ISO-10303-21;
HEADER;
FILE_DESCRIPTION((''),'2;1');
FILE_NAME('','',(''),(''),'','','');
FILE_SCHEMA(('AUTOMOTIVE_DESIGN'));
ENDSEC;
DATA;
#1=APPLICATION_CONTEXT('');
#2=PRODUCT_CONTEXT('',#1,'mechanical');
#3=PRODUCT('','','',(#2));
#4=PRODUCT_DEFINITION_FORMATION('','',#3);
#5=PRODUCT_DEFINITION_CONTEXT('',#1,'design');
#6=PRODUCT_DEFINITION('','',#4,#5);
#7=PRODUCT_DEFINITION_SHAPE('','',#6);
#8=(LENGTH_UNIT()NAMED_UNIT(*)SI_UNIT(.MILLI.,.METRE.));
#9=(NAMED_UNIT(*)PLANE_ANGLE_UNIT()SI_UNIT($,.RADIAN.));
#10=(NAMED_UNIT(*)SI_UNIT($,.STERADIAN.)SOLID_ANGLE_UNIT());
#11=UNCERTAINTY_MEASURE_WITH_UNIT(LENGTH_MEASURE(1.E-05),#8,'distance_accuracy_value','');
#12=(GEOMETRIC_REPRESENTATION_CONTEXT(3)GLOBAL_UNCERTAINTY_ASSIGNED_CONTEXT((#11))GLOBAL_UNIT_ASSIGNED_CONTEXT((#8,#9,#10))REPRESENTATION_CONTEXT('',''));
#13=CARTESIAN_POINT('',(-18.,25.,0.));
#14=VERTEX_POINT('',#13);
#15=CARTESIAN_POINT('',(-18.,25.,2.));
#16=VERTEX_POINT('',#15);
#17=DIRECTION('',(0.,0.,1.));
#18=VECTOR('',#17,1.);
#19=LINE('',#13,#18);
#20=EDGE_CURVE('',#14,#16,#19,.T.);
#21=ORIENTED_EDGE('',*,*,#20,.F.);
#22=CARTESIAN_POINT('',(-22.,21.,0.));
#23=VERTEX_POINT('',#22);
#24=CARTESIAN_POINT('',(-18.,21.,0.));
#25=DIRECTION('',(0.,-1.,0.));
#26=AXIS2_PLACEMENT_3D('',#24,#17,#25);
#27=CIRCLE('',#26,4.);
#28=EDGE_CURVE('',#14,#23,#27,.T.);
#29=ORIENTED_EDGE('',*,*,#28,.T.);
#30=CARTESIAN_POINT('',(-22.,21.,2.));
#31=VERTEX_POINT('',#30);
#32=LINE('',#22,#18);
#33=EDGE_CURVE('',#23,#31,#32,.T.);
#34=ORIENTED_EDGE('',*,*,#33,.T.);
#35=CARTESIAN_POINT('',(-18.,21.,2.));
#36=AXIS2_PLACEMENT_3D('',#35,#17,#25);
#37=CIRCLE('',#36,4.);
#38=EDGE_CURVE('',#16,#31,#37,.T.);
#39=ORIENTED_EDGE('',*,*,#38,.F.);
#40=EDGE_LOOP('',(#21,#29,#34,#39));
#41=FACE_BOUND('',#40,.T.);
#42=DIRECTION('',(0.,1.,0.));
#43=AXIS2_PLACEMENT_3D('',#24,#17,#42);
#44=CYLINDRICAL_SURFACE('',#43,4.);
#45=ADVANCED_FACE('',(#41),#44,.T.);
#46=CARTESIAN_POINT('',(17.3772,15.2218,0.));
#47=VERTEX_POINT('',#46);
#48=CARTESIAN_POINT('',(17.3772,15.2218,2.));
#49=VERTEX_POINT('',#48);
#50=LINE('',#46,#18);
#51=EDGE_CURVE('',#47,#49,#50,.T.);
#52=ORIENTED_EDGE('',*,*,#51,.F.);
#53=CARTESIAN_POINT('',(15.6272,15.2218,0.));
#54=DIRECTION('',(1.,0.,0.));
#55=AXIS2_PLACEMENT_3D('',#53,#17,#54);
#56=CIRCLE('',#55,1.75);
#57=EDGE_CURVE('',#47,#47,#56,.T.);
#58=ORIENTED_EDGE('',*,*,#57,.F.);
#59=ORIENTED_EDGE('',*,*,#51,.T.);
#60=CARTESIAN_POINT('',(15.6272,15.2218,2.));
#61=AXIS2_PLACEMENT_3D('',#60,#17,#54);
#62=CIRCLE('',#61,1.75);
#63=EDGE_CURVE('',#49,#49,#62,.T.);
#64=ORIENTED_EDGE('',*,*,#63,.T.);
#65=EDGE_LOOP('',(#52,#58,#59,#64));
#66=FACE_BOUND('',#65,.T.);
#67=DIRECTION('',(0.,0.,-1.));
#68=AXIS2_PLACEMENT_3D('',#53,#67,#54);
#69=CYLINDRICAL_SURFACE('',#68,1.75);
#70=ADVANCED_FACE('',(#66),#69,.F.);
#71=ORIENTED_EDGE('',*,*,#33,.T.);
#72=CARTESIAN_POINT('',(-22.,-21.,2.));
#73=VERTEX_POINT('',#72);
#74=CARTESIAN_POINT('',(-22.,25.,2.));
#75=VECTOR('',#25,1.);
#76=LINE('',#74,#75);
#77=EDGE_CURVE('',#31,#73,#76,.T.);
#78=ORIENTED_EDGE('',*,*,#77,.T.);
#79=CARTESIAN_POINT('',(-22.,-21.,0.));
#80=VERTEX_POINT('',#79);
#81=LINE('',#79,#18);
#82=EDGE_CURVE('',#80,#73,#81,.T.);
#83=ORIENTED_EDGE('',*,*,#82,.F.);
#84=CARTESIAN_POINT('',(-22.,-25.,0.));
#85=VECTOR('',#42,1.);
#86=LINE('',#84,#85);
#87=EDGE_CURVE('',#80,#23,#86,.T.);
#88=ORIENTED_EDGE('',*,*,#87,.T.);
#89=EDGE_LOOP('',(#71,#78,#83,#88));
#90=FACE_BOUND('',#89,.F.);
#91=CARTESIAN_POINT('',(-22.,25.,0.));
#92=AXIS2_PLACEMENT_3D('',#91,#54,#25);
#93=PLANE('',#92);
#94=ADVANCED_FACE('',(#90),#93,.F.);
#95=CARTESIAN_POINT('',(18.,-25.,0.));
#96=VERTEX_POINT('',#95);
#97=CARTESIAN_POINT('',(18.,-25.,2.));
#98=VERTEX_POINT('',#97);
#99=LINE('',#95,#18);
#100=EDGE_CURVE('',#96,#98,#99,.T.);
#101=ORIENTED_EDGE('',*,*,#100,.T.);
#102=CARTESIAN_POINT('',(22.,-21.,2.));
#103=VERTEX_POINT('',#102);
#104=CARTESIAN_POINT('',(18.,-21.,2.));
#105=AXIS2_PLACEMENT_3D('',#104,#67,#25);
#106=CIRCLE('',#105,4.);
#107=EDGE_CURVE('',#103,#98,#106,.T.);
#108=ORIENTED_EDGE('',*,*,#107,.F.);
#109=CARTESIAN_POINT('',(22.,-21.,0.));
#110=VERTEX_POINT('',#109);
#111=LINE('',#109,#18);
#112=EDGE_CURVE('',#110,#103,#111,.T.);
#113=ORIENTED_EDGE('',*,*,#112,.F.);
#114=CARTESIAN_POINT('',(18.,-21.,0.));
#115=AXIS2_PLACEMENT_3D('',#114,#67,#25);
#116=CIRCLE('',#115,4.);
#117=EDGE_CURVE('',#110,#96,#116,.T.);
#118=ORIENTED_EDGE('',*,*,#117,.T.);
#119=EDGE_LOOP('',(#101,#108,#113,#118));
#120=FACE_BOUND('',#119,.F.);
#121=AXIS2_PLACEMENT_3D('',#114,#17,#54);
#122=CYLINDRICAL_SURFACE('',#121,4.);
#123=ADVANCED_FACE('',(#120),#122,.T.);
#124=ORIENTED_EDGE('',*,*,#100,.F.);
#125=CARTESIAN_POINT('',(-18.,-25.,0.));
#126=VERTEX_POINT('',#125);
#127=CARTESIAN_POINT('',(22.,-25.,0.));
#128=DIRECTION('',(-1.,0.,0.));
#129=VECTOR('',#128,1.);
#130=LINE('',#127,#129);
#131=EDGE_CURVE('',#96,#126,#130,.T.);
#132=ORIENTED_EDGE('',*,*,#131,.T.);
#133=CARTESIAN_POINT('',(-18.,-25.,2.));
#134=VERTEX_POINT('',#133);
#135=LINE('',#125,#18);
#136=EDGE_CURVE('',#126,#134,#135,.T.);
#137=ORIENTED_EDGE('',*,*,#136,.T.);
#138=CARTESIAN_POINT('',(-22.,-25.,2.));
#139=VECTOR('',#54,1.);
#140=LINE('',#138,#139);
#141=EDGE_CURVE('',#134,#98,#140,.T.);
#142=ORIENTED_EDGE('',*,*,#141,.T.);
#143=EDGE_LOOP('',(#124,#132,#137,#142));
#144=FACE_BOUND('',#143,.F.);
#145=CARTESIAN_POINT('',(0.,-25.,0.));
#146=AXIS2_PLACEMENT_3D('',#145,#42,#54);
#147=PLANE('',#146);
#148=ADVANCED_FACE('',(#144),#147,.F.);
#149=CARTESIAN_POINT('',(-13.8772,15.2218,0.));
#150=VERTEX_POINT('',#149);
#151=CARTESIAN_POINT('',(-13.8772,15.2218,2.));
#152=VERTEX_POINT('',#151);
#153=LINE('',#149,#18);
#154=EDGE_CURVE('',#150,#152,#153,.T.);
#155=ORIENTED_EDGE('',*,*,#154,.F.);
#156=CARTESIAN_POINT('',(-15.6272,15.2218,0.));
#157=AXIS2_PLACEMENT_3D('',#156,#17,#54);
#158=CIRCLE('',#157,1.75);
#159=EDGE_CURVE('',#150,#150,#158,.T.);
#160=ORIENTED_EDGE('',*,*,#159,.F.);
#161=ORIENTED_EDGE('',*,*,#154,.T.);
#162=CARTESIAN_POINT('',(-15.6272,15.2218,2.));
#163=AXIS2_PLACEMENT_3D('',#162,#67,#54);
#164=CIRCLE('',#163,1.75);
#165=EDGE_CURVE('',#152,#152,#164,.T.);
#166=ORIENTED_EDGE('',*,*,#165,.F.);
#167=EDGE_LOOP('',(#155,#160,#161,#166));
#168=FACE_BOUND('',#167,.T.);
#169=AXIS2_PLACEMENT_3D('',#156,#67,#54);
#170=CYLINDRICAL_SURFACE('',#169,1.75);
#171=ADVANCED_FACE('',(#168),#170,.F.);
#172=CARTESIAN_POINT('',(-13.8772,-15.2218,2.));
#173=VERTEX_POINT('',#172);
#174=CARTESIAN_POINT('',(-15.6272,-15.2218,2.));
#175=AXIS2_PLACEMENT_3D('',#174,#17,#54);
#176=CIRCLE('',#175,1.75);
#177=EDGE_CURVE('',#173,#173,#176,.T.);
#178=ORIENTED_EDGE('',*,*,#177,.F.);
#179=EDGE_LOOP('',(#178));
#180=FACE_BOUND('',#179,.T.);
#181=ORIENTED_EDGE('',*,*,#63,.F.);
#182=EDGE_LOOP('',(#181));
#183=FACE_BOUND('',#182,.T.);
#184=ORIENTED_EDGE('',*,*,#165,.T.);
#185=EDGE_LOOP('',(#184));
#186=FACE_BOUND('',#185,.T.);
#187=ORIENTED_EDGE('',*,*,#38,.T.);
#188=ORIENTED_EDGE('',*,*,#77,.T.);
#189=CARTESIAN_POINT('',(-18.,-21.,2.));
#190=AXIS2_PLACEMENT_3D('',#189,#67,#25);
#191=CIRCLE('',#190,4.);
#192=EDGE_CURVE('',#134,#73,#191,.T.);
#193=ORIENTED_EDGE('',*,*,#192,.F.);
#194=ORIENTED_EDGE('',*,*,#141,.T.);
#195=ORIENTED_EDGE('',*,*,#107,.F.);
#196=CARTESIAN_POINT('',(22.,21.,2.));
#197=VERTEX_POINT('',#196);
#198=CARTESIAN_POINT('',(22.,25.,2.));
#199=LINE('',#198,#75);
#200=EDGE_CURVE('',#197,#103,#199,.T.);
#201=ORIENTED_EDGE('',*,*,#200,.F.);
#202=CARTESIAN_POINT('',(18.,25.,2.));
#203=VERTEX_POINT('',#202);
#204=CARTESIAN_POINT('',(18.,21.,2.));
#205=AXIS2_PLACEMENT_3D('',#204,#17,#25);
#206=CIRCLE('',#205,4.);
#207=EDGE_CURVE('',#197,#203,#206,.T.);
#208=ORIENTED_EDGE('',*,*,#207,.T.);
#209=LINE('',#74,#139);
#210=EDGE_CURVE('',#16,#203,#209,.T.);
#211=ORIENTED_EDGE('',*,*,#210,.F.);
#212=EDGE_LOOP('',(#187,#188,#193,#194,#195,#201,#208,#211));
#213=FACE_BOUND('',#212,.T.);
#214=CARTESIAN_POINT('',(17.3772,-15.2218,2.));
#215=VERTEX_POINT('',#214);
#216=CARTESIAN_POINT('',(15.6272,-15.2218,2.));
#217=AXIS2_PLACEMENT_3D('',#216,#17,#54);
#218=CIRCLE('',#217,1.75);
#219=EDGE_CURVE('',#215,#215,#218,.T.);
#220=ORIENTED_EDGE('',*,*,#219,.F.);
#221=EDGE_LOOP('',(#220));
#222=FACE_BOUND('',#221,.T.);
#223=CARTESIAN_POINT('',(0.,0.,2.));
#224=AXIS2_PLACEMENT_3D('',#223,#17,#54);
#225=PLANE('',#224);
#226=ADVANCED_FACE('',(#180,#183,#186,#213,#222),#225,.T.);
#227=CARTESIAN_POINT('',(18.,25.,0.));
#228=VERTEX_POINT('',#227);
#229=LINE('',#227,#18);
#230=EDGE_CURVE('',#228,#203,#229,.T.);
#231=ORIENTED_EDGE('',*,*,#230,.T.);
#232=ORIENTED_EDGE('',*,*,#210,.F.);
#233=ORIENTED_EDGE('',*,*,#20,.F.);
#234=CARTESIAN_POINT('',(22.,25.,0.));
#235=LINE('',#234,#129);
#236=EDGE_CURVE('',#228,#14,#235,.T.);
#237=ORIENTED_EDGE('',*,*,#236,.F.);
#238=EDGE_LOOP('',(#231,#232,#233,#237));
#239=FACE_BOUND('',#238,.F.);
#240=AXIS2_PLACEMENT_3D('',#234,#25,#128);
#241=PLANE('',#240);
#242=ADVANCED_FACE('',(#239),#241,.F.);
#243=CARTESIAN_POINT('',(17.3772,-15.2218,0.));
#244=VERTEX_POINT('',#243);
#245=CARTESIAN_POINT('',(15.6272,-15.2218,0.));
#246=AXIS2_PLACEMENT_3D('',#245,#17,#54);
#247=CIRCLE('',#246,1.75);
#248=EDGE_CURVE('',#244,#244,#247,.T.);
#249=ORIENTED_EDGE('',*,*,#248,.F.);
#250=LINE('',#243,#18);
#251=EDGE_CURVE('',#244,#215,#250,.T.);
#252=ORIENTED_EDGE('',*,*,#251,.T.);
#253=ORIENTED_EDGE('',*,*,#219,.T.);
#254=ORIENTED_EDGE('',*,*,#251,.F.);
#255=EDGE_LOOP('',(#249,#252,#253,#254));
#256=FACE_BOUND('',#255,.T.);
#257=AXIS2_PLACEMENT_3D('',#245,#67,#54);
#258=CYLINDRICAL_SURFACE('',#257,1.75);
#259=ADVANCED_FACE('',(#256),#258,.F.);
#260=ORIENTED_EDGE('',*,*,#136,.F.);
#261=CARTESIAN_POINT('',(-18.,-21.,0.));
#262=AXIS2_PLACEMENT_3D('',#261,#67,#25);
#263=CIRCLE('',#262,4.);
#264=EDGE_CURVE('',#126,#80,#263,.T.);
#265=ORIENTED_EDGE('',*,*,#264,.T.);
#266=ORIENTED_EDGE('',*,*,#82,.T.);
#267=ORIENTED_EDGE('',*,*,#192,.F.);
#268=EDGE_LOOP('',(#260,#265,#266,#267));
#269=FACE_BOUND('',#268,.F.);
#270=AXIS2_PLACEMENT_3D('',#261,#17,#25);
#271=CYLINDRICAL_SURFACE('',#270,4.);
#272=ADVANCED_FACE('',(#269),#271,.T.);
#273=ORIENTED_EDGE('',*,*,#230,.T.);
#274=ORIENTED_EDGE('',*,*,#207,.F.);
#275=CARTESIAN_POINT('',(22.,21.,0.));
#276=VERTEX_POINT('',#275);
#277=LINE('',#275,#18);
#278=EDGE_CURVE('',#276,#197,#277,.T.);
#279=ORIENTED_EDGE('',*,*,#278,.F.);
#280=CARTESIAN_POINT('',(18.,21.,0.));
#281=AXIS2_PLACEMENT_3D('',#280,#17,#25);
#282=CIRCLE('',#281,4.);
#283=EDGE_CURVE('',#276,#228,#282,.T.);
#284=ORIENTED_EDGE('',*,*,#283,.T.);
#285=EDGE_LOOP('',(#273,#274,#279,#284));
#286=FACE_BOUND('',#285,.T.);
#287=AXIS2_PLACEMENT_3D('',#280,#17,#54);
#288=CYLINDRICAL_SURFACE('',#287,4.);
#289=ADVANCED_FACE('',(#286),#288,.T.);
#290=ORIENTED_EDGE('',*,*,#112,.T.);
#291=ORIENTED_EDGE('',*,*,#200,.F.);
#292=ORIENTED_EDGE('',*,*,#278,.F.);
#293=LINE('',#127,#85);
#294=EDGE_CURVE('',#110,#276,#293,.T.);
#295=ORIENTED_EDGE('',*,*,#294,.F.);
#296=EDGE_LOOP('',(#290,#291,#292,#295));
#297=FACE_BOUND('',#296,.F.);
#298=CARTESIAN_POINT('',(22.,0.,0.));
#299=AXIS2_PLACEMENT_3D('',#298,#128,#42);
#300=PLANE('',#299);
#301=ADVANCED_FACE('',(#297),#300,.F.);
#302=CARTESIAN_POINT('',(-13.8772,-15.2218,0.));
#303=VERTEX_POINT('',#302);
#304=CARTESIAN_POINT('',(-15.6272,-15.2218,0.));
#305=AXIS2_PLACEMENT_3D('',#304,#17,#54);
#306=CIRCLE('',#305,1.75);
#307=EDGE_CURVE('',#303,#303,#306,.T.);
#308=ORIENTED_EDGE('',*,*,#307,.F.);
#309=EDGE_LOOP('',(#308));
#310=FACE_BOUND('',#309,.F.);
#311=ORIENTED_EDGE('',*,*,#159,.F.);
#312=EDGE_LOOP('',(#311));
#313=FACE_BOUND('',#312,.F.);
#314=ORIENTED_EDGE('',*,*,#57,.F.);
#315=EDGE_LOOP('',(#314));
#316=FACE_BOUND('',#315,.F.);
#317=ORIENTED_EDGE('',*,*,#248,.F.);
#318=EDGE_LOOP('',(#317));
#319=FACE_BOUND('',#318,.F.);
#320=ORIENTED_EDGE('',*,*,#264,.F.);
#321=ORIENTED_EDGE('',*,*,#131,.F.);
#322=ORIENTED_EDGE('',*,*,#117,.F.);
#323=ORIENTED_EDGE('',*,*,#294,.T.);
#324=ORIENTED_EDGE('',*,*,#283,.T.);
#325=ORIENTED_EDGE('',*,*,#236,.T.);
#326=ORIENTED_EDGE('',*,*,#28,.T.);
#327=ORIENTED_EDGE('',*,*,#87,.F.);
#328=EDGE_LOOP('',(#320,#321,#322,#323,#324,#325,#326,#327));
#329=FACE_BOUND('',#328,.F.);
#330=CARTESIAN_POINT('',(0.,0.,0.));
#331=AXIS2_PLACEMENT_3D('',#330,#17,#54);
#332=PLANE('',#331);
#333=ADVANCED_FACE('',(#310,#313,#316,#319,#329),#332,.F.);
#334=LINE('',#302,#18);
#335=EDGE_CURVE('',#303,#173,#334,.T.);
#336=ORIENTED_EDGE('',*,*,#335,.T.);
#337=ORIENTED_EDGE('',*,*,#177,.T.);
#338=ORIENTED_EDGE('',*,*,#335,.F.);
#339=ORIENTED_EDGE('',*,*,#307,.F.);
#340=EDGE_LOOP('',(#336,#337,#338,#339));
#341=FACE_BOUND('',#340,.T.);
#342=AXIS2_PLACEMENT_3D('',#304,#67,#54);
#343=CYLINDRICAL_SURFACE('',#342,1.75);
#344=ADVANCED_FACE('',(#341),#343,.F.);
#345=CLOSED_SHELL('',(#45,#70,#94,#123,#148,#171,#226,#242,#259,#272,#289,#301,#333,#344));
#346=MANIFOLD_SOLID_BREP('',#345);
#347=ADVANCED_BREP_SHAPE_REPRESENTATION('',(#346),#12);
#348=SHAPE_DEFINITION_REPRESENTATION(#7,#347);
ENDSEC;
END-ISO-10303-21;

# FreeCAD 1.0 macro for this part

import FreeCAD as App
import Part
import Sketcher
Q = App.Units.Quantity


def edges_at(feature, points):
    """Names of the edges that pass closest to the given points."""
    edges = feature.Shape.Edges
    near = lambda p: min(range(len(edges)), key=lambda i: edges[i].distToShape(Part.Vertex(*p))[0])
    return sorted({f"Edge{near(p) + 1}" for p in points})

doc = App.newDocument("Part")
body = doc.addObject("PartDesign::Body", "Body")

sketch1 = doc.addObject("Sketcher::SketchObject", "Sketch")
body.addObject(sketch1)
sketch1.AttachmentSupport = (doc.XY_Plane, [""])
sketch1.MapMode = "FlatFace"
sketch1.addGeometry([
    Part.LineSegment(App.Vector(22, 25, 0), App.Vector(-22, 25, 0)),
    Part.LineSegment(App.Vector(-22, 25, 0), App.Vector(-22, -25, 0)),
    Part.LineSegment(App.Vector(-22, -25, 0), App.Vector(22, -25, 0)),
    Part.LineSegment(App.Vector(22, -25, 0), App.Vector(22, 25, 0)),
    Part.Circle(App.Vector(15.6, 15.2, 0), App.Vector(0, 0, 1), 1.8),
    Part.Circle(App.Vector(15.6, -15.2, 0), App.Vector(0, 0, 1), 1.8),
    Part.Circle(App.Vector(-15.6, 15.2, 0), App.Vector(0, 0, 1), 1.8),
    Part.Circle(App.Vector(-15.6, -15.2, 0), App.Vector(0, 0, 1), 1.8),
], False)
sketch1.addConstraint([
    Sketcher.Constraint("Coincident", 0, 2, 1, 1),
    Sketcher.Constraint("Coincident", 1, 2, 2, 1),
    Sketcher.Constraint("Coincident", 2, 2, 3, 1),
    Sketcher.Constraint("Coincident", 3, 2, 0, 1),
    Sketcher.Constraint("Horizontal", 0),
    Sketcher.Constraint("Vertical", 1),
    Sketcher.Constraint("Horizontal", 2),
    Sketcher.Constraint("Vertical", 3),
    Sketcher.Constraint("Equal", 4, 5),
    Sketcher.Constraint("Equal", 5, 6),
    Sketcher.Constraint("Equal", 6, 7),
    Sketcher.Constraint("Symmetric", 5, 3, 6, 3, -1, 1),
    Sketcher.Constraint("Symmetric", 4, 3, 7, 3, -1, 1),
    Sketcher.Constraint("Symmetric", 0, 2, 2, 2, -1, 1),
    Sketcher.Constraint("Symmetric", 4, 3, 6, 3, -2),
    Sketcher.Constraint("Diameter", 4, Q("3.5 mm")),
    Sketcher.Constraint("DistanceX", 0, 2, 0, 1, Q("44 mm")),
    Sketcher.Constraint("DistanceY", 1, 2, 1, 1, Q("50 mm")),
    Sketcher.Constraint("DistanceX", -1, 1, 4, 3, Q("15.6272 mm")),
    Sketcher.Constraint("DistanceY", -1, 1, 4, 3, Q("15.2218 mm")),
])
pad1 = doc.addObject("PartDesign::Pad", "Pad")
body.addObject(pad1)
pad1.Profile = sketch1
pad1.Length = 2
doc.recompute()

fillet = doc.addObject("PartDesign::Fillet", "Fillet")
body.addObject(fillet)
fillet.Base = (pad1, edges_at(pad1, [
    (22, -25, 1),
    (-22, -25, 1),
    (-22, 25, 1),
    (22, 25, 1),
]))
fillet.Radius = 4

doc.recompute()
